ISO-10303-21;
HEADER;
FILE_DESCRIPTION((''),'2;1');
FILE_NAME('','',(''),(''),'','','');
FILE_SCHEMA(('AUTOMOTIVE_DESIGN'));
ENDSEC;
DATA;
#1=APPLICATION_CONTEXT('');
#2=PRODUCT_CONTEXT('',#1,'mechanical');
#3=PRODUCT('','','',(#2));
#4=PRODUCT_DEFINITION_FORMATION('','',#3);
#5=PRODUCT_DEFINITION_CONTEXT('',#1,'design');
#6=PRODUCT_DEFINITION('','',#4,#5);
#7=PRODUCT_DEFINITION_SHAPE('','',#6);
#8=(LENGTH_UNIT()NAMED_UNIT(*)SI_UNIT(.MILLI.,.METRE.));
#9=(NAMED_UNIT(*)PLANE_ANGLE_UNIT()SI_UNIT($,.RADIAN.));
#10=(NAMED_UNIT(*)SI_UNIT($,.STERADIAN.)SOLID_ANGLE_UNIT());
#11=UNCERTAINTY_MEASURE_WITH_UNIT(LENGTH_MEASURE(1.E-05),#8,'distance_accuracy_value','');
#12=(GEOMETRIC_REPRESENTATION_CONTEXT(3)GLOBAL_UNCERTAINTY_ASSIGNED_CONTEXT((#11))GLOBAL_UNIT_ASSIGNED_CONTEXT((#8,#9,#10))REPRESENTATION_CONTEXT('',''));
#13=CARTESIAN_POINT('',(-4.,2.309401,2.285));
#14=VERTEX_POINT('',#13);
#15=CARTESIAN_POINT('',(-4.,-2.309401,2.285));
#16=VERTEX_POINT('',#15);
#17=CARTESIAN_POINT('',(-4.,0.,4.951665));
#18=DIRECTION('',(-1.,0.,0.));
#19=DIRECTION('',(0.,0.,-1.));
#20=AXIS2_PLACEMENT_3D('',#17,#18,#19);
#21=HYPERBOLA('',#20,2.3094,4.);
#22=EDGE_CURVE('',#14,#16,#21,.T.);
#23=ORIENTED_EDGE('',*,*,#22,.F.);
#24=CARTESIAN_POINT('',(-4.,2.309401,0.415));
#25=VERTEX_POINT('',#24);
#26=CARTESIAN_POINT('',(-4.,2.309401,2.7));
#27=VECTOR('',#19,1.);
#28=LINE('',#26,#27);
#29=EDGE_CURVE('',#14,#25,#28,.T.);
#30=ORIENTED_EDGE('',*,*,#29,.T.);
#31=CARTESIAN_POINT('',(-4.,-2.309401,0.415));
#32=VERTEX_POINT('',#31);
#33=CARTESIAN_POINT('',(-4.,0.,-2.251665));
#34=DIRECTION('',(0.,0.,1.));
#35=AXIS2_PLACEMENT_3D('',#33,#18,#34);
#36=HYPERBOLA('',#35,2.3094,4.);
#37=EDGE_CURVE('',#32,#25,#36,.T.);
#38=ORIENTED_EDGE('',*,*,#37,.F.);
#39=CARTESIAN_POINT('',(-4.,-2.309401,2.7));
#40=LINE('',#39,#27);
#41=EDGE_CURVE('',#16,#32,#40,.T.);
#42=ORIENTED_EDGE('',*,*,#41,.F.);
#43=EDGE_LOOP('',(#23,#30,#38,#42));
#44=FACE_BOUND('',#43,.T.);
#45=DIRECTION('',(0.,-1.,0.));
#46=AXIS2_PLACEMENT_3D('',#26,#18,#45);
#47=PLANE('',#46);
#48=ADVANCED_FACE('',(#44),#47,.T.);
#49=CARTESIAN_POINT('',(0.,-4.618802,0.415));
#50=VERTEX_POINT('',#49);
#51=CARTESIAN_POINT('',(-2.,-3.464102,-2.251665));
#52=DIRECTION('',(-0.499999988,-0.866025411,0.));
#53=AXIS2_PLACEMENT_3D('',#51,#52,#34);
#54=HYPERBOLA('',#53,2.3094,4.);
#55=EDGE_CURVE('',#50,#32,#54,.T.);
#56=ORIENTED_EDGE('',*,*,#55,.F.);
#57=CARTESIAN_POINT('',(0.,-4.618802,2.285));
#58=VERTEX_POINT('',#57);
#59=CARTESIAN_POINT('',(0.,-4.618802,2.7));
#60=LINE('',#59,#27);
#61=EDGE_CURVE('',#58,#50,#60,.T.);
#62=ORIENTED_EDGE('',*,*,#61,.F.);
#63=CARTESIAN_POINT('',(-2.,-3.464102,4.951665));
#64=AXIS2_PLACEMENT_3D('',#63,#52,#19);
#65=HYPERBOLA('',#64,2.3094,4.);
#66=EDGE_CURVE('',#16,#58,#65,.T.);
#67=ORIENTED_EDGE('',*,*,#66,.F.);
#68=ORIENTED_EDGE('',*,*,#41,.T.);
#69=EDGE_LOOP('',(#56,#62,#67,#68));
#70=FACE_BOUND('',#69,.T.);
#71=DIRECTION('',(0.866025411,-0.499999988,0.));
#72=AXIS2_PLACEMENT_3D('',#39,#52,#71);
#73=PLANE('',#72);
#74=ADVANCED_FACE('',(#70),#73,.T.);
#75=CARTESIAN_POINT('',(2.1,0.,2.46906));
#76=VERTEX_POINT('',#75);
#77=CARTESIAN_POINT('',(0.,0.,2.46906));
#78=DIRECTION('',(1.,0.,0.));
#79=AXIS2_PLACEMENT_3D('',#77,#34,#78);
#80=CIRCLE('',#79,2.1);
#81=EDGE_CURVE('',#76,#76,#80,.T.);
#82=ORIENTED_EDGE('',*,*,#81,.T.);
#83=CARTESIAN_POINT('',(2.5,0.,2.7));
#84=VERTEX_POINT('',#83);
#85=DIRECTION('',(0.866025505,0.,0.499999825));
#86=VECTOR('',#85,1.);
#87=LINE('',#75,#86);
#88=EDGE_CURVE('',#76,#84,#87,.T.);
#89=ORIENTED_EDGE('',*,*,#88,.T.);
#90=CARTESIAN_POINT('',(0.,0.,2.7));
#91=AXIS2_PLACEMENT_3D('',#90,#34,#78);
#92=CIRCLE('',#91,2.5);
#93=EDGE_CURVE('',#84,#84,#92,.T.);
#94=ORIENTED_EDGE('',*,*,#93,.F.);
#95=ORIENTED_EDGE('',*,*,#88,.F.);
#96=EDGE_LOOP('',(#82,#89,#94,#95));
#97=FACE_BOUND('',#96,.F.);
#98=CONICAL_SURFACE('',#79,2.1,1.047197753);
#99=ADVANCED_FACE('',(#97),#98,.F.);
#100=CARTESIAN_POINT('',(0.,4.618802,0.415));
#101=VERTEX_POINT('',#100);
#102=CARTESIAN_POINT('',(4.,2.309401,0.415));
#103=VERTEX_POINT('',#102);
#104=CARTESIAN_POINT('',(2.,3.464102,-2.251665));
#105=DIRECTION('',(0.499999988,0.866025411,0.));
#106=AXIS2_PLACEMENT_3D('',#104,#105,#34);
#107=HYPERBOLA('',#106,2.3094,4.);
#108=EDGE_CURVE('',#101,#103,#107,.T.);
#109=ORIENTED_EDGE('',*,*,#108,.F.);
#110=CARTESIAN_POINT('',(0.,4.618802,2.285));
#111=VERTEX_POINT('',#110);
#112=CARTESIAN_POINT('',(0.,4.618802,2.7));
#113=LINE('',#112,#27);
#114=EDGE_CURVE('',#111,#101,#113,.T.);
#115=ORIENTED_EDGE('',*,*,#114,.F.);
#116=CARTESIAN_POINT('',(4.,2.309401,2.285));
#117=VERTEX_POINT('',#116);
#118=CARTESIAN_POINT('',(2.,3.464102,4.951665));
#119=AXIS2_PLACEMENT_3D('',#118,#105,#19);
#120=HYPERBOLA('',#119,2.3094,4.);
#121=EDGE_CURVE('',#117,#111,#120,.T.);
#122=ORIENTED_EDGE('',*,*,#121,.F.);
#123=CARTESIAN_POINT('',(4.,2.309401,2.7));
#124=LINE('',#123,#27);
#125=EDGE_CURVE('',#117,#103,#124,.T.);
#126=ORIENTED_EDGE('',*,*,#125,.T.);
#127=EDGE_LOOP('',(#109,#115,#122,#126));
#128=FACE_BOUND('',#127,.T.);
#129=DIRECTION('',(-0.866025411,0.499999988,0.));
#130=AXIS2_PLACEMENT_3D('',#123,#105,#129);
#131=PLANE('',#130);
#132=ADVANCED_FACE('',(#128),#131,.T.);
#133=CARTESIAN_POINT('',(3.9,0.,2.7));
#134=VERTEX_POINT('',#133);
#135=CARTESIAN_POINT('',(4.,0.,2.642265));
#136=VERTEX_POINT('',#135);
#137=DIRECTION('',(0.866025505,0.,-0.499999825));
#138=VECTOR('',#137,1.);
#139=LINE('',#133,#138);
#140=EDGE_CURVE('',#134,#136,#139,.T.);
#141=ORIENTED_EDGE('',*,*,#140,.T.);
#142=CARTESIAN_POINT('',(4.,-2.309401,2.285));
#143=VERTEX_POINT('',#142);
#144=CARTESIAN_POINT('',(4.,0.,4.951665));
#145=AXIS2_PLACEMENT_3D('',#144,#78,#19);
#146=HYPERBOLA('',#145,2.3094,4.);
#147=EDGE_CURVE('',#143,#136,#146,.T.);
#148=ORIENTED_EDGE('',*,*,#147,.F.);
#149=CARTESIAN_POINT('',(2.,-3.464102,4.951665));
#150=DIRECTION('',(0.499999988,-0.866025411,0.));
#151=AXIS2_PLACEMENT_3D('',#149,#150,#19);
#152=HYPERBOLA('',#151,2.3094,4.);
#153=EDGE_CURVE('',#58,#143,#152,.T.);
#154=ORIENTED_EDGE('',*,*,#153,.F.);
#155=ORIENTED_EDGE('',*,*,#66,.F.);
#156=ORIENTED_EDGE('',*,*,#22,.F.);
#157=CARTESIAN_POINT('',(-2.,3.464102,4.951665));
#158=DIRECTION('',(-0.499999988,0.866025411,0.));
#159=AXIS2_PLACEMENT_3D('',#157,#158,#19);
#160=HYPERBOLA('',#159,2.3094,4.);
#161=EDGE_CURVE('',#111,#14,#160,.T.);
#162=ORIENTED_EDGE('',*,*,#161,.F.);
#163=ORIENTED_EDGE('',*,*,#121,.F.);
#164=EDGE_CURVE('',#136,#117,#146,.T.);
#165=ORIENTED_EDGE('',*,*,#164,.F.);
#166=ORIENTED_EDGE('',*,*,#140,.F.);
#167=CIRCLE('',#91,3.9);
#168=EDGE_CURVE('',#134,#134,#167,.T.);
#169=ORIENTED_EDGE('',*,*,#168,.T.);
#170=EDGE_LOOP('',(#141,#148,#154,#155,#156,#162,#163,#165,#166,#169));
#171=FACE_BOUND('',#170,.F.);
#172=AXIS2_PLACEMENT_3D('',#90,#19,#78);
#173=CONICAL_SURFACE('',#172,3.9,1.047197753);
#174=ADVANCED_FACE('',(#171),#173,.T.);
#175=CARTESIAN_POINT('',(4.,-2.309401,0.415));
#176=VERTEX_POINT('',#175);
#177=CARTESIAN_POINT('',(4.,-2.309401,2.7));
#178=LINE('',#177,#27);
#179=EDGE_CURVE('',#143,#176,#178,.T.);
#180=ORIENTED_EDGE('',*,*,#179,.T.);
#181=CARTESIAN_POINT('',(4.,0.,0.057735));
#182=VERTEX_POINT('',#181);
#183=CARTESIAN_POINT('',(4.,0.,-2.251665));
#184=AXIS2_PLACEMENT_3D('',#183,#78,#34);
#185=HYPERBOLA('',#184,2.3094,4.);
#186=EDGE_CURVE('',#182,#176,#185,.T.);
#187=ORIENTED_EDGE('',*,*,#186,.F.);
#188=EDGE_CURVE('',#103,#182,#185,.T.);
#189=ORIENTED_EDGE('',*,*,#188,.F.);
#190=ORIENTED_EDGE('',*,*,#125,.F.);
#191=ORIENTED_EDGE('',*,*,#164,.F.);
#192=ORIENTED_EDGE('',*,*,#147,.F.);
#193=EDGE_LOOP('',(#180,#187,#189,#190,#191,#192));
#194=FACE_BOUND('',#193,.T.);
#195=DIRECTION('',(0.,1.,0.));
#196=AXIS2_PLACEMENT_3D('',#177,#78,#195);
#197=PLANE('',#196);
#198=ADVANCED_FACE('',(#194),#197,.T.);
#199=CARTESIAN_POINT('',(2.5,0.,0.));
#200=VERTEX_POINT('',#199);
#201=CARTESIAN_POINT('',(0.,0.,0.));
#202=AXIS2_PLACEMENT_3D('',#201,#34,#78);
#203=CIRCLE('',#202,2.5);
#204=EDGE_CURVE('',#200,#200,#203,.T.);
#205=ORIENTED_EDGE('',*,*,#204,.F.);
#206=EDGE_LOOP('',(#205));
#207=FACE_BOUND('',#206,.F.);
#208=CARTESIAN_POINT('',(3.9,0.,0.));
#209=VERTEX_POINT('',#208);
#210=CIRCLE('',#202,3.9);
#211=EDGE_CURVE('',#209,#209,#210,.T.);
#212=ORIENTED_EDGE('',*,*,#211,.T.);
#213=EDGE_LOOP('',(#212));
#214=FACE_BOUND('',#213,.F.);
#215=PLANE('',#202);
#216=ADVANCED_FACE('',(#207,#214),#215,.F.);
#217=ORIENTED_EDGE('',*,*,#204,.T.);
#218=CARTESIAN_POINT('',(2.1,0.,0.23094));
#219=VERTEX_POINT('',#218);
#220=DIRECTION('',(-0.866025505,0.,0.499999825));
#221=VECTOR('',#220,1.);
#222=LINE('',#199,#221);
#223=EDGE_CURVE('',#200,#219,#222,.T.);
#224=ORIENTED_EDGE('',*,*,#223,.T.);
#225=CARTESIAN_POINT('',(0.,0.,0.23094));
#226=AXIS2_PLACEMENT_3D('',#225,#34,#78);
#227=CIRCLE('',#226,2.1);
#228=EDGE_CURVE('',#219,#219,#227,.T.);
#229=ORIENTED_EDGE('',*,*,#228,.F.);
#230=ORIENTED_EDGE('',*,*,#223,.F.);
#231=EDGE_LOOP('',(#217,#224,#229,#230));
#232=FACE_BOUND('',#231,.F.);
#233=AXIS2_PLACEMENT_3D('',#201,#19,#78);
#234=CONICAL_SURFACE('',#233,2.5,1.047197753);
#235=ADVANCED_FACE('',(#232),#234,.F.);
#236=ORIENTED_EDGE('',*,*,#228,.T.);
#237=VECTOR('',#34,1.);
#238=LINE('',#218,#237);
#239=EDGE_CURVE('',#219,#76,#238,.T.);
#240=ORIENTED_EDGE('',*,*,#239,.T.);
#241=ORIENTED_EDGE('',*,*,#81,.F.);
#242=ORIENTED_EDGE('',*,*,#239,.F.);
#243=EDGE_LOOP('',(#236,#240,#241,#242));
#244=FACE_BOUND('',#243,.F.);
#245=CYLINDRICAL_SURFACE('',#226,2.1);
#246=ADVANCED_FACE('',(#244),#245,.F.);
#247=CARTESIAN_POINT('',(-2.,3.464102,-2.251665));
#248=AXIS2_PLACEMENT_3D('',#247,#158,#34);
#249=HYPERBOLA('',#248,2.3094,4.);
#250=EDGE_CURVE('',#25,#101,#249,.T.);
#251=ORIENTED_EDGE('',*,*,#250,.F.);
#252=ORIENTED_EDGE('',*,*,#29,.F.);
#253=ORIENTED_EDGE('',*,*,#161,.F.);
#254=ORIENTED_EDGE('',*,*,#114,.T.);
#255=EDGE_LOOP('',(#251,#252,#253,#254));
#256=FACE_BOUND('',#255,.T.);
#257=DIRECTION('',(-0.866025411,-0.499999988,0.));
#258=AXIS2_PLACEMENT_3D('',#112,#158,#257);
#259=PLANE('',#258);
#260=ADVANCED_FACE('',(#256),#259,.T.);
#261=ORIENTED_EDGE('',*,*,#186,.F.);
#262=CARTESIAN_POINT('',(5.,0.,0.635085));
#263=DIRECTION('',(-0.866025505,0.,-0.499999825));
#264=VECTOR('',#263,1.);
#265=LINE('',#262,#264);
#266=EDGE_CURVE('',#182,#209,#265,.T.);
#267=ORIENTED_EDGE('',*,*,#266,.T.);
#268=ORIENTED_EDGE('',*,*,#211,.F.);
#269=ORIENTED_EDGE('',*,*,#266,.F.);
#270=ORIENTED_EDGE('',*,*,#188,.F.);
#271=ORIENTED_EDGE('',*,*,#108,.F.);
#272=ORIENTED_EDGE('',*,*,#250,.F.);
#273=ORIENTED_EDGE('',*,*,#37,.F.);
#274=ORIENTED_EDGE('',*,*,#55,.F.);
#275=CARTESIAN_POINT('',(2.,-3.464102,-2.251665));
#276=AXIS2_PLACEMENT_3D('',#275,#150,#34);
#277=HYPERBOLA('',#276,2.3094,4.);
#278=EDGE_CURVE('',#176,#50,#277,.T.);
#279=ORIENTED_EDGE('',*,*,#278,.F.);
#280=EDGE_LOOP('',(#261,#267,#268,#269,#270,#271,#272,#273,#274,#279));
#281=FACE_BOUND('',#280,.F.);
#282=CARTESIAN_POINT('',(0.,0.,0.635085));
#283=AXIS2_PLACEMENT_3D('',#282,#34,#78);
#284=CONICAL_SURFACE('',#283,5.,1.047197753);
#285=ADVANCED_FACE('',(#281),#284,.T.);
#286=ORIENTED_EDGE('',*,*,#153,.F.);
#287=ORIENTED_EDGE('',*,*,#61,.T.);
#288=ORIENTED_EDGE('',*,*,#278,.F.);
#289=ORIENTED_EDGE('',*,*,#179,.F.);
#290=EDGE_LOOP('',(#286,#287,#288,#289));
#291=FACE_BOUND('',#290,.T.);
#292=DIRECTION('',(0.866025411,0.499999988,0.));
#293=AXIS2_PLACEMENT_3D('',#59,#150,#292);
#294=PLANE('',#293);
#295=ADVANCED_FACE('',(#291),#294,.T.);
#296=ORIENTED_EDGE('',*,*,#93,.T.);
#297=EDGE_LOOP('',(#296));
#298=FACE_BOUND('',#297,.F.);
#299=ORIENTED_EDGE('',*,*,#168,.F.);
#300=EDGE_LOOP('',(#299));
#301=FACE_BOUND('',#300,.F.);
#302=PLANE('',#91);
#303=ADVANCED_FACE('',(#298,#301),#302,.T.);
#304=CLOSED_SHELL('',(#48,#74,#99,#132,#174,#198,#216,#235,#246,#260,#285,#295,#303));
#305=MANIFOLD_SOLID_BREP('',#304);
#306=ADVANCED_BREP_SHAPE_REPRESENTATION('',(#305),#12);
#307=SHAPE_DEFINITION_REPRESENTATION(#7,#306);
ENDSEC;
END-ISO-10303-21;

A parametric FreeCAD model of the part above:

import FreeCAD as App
import Part
import Sketcher
from FreeCAD import Vector
Q = App.Units.Quantity


def add_polygon(sketch, points):
    """Adds a closed chain of lines whose ends are joined by coincident constraints."""
    first, n = sketch.GeometryCount, len(points)
    for a, b in zip(points, points[1:] + points[:1]):
        sketch.addGeometry(Part.LineSegment(App.Vector(*a, 0), App.Vector(*b, 0)), False)
    for i in range(n):
        sketch.addConstraint(Sketcher.Constraint("Coincident", first + i, 2, first + (i + 1) % n, 1))

doc = App.newDocument("Part")
body = doc.addObject("PartDesign::Body", "Body")

# Sketch on XZ plane
sketch1 = body.newObject("Sketcher::SketchObject", "Sketch")
sketch1.AttachmentSupport = (doc.getObject("XZ_Plane"), [""])
sketch1.MapMode = "FlatFace"
add_polygon(sketch1, [(2.1, 0.23), (2.5, 0), (3.9, 0), (5, 0.64), (5, 2.06), (3.9, 2.7), (2.5, 2.7), (2.1, 2.47)])  # lines 0-7
sketch1.addConstraint([
    Sketcher.Constraint("Horizontal", 1),
    Sketcher.Constraint("Vertical", 3),
    Sketcher.Constraint("Horizontal", 5),
    Sketcher.Constraint("Vertical", 7),
    Sketcher.Constraint("PointOnObject", 0, 2, -1),
    Sketcher.Constraint("Parallel", 0, 4),
    Sketcher.Constraint("Parallel", 2, 6),
    Sketcher.Constraint("Vertical", 1, 2, 4, 2),
    Sketcher.Constraint("Vertical", 0, 2, 5, 2),
    Sketcher.Constraint("Equal", 2, 4),
    Sketcher.Constraint("Angle", 0, Q("-29.999988 deg")),
    Sketcher.Constraint("DistanceX", 1, 1, 1, 2, 1.4),
    Sketcher.Constraint("DistanceX", -1, 1, 2, 2, 5.0),
    Sketcher.Constraint("DistanceX", -1, 1, 0, 2, 2.5),
    Sketcher.Constraint("DistanceY", -1, 1, 4, 2, 2.7),
    Sketcher.Constraint("DistanceX", -1, 1, 6, 2, 2.1),
])
revolution = body.newObject("PartDesign::Revolution", "Revolution")
revolution.Profile = sketch1
revolution.ReferenceAxis = (sketch1, ["V_Axis"])
revolution.Angle = 360

# Sketch on XY plane
sketch2 = body.newObject("Sketcher::SketchObject", "Sketch001")
sketch2.AttachmentSupport = (doc.getObject("XY_Plane"), [""])
sketch2.MapMode = "FlatFace"
sketch2.AttachmentOffset = App.Placement(Vector(0, 0, 2.7), App.Rotation())
sketch2.addGeometry(Part.Circle(Vector(0, 0, 0), Vector(0, 0, 1), 5), False)  # 0
add_polygon(sketch2, [(4, 2.3), (4, -2.3), (0, -4.6), (-4, -2.3), (-4, 2.3), (0, 4.6)])  # lines 1-6
sketch2.addConstraint([
    Sketcher.Constraint("Vertical", 1),
    Sketcher.Constraint("Vertical", 4),
    Sketcher.Constraint("Coincident", 0, 3, -1, 1),
    Sketcher.Constraint("Symmetric", 1, 2, 4, 2, -1, 1),
    Sketcher.Constraint("Symmetric", 2, 2, 5, 2, -1, 1),
    Sketcher.Constraint("PointOnObject", 2, 2, -2),
    Sketcher.Constraint("Parallel", 3, 6),
    Sketcher.Constraint("Horizontal", 1, 2, 3, 2),
    Sketcher.Constraint("Diameter", 0, 10.0),
    Sketcher.Constraint("Angle", 2, Q("-150.000001 deg")),
    Sketcher.Constraint("DistanceX", -1, 1, 1, 2, 4.0),
    Sketcher.Constraint("DistanceY", 1, 2, 1, 1, 4.618802),
])
pocket1 = body.newObject("PartDesign::Pocket", "Pocket")
pocket1.Profile = sketch2
pocket1.Length = 2.7

doc.recompute()
